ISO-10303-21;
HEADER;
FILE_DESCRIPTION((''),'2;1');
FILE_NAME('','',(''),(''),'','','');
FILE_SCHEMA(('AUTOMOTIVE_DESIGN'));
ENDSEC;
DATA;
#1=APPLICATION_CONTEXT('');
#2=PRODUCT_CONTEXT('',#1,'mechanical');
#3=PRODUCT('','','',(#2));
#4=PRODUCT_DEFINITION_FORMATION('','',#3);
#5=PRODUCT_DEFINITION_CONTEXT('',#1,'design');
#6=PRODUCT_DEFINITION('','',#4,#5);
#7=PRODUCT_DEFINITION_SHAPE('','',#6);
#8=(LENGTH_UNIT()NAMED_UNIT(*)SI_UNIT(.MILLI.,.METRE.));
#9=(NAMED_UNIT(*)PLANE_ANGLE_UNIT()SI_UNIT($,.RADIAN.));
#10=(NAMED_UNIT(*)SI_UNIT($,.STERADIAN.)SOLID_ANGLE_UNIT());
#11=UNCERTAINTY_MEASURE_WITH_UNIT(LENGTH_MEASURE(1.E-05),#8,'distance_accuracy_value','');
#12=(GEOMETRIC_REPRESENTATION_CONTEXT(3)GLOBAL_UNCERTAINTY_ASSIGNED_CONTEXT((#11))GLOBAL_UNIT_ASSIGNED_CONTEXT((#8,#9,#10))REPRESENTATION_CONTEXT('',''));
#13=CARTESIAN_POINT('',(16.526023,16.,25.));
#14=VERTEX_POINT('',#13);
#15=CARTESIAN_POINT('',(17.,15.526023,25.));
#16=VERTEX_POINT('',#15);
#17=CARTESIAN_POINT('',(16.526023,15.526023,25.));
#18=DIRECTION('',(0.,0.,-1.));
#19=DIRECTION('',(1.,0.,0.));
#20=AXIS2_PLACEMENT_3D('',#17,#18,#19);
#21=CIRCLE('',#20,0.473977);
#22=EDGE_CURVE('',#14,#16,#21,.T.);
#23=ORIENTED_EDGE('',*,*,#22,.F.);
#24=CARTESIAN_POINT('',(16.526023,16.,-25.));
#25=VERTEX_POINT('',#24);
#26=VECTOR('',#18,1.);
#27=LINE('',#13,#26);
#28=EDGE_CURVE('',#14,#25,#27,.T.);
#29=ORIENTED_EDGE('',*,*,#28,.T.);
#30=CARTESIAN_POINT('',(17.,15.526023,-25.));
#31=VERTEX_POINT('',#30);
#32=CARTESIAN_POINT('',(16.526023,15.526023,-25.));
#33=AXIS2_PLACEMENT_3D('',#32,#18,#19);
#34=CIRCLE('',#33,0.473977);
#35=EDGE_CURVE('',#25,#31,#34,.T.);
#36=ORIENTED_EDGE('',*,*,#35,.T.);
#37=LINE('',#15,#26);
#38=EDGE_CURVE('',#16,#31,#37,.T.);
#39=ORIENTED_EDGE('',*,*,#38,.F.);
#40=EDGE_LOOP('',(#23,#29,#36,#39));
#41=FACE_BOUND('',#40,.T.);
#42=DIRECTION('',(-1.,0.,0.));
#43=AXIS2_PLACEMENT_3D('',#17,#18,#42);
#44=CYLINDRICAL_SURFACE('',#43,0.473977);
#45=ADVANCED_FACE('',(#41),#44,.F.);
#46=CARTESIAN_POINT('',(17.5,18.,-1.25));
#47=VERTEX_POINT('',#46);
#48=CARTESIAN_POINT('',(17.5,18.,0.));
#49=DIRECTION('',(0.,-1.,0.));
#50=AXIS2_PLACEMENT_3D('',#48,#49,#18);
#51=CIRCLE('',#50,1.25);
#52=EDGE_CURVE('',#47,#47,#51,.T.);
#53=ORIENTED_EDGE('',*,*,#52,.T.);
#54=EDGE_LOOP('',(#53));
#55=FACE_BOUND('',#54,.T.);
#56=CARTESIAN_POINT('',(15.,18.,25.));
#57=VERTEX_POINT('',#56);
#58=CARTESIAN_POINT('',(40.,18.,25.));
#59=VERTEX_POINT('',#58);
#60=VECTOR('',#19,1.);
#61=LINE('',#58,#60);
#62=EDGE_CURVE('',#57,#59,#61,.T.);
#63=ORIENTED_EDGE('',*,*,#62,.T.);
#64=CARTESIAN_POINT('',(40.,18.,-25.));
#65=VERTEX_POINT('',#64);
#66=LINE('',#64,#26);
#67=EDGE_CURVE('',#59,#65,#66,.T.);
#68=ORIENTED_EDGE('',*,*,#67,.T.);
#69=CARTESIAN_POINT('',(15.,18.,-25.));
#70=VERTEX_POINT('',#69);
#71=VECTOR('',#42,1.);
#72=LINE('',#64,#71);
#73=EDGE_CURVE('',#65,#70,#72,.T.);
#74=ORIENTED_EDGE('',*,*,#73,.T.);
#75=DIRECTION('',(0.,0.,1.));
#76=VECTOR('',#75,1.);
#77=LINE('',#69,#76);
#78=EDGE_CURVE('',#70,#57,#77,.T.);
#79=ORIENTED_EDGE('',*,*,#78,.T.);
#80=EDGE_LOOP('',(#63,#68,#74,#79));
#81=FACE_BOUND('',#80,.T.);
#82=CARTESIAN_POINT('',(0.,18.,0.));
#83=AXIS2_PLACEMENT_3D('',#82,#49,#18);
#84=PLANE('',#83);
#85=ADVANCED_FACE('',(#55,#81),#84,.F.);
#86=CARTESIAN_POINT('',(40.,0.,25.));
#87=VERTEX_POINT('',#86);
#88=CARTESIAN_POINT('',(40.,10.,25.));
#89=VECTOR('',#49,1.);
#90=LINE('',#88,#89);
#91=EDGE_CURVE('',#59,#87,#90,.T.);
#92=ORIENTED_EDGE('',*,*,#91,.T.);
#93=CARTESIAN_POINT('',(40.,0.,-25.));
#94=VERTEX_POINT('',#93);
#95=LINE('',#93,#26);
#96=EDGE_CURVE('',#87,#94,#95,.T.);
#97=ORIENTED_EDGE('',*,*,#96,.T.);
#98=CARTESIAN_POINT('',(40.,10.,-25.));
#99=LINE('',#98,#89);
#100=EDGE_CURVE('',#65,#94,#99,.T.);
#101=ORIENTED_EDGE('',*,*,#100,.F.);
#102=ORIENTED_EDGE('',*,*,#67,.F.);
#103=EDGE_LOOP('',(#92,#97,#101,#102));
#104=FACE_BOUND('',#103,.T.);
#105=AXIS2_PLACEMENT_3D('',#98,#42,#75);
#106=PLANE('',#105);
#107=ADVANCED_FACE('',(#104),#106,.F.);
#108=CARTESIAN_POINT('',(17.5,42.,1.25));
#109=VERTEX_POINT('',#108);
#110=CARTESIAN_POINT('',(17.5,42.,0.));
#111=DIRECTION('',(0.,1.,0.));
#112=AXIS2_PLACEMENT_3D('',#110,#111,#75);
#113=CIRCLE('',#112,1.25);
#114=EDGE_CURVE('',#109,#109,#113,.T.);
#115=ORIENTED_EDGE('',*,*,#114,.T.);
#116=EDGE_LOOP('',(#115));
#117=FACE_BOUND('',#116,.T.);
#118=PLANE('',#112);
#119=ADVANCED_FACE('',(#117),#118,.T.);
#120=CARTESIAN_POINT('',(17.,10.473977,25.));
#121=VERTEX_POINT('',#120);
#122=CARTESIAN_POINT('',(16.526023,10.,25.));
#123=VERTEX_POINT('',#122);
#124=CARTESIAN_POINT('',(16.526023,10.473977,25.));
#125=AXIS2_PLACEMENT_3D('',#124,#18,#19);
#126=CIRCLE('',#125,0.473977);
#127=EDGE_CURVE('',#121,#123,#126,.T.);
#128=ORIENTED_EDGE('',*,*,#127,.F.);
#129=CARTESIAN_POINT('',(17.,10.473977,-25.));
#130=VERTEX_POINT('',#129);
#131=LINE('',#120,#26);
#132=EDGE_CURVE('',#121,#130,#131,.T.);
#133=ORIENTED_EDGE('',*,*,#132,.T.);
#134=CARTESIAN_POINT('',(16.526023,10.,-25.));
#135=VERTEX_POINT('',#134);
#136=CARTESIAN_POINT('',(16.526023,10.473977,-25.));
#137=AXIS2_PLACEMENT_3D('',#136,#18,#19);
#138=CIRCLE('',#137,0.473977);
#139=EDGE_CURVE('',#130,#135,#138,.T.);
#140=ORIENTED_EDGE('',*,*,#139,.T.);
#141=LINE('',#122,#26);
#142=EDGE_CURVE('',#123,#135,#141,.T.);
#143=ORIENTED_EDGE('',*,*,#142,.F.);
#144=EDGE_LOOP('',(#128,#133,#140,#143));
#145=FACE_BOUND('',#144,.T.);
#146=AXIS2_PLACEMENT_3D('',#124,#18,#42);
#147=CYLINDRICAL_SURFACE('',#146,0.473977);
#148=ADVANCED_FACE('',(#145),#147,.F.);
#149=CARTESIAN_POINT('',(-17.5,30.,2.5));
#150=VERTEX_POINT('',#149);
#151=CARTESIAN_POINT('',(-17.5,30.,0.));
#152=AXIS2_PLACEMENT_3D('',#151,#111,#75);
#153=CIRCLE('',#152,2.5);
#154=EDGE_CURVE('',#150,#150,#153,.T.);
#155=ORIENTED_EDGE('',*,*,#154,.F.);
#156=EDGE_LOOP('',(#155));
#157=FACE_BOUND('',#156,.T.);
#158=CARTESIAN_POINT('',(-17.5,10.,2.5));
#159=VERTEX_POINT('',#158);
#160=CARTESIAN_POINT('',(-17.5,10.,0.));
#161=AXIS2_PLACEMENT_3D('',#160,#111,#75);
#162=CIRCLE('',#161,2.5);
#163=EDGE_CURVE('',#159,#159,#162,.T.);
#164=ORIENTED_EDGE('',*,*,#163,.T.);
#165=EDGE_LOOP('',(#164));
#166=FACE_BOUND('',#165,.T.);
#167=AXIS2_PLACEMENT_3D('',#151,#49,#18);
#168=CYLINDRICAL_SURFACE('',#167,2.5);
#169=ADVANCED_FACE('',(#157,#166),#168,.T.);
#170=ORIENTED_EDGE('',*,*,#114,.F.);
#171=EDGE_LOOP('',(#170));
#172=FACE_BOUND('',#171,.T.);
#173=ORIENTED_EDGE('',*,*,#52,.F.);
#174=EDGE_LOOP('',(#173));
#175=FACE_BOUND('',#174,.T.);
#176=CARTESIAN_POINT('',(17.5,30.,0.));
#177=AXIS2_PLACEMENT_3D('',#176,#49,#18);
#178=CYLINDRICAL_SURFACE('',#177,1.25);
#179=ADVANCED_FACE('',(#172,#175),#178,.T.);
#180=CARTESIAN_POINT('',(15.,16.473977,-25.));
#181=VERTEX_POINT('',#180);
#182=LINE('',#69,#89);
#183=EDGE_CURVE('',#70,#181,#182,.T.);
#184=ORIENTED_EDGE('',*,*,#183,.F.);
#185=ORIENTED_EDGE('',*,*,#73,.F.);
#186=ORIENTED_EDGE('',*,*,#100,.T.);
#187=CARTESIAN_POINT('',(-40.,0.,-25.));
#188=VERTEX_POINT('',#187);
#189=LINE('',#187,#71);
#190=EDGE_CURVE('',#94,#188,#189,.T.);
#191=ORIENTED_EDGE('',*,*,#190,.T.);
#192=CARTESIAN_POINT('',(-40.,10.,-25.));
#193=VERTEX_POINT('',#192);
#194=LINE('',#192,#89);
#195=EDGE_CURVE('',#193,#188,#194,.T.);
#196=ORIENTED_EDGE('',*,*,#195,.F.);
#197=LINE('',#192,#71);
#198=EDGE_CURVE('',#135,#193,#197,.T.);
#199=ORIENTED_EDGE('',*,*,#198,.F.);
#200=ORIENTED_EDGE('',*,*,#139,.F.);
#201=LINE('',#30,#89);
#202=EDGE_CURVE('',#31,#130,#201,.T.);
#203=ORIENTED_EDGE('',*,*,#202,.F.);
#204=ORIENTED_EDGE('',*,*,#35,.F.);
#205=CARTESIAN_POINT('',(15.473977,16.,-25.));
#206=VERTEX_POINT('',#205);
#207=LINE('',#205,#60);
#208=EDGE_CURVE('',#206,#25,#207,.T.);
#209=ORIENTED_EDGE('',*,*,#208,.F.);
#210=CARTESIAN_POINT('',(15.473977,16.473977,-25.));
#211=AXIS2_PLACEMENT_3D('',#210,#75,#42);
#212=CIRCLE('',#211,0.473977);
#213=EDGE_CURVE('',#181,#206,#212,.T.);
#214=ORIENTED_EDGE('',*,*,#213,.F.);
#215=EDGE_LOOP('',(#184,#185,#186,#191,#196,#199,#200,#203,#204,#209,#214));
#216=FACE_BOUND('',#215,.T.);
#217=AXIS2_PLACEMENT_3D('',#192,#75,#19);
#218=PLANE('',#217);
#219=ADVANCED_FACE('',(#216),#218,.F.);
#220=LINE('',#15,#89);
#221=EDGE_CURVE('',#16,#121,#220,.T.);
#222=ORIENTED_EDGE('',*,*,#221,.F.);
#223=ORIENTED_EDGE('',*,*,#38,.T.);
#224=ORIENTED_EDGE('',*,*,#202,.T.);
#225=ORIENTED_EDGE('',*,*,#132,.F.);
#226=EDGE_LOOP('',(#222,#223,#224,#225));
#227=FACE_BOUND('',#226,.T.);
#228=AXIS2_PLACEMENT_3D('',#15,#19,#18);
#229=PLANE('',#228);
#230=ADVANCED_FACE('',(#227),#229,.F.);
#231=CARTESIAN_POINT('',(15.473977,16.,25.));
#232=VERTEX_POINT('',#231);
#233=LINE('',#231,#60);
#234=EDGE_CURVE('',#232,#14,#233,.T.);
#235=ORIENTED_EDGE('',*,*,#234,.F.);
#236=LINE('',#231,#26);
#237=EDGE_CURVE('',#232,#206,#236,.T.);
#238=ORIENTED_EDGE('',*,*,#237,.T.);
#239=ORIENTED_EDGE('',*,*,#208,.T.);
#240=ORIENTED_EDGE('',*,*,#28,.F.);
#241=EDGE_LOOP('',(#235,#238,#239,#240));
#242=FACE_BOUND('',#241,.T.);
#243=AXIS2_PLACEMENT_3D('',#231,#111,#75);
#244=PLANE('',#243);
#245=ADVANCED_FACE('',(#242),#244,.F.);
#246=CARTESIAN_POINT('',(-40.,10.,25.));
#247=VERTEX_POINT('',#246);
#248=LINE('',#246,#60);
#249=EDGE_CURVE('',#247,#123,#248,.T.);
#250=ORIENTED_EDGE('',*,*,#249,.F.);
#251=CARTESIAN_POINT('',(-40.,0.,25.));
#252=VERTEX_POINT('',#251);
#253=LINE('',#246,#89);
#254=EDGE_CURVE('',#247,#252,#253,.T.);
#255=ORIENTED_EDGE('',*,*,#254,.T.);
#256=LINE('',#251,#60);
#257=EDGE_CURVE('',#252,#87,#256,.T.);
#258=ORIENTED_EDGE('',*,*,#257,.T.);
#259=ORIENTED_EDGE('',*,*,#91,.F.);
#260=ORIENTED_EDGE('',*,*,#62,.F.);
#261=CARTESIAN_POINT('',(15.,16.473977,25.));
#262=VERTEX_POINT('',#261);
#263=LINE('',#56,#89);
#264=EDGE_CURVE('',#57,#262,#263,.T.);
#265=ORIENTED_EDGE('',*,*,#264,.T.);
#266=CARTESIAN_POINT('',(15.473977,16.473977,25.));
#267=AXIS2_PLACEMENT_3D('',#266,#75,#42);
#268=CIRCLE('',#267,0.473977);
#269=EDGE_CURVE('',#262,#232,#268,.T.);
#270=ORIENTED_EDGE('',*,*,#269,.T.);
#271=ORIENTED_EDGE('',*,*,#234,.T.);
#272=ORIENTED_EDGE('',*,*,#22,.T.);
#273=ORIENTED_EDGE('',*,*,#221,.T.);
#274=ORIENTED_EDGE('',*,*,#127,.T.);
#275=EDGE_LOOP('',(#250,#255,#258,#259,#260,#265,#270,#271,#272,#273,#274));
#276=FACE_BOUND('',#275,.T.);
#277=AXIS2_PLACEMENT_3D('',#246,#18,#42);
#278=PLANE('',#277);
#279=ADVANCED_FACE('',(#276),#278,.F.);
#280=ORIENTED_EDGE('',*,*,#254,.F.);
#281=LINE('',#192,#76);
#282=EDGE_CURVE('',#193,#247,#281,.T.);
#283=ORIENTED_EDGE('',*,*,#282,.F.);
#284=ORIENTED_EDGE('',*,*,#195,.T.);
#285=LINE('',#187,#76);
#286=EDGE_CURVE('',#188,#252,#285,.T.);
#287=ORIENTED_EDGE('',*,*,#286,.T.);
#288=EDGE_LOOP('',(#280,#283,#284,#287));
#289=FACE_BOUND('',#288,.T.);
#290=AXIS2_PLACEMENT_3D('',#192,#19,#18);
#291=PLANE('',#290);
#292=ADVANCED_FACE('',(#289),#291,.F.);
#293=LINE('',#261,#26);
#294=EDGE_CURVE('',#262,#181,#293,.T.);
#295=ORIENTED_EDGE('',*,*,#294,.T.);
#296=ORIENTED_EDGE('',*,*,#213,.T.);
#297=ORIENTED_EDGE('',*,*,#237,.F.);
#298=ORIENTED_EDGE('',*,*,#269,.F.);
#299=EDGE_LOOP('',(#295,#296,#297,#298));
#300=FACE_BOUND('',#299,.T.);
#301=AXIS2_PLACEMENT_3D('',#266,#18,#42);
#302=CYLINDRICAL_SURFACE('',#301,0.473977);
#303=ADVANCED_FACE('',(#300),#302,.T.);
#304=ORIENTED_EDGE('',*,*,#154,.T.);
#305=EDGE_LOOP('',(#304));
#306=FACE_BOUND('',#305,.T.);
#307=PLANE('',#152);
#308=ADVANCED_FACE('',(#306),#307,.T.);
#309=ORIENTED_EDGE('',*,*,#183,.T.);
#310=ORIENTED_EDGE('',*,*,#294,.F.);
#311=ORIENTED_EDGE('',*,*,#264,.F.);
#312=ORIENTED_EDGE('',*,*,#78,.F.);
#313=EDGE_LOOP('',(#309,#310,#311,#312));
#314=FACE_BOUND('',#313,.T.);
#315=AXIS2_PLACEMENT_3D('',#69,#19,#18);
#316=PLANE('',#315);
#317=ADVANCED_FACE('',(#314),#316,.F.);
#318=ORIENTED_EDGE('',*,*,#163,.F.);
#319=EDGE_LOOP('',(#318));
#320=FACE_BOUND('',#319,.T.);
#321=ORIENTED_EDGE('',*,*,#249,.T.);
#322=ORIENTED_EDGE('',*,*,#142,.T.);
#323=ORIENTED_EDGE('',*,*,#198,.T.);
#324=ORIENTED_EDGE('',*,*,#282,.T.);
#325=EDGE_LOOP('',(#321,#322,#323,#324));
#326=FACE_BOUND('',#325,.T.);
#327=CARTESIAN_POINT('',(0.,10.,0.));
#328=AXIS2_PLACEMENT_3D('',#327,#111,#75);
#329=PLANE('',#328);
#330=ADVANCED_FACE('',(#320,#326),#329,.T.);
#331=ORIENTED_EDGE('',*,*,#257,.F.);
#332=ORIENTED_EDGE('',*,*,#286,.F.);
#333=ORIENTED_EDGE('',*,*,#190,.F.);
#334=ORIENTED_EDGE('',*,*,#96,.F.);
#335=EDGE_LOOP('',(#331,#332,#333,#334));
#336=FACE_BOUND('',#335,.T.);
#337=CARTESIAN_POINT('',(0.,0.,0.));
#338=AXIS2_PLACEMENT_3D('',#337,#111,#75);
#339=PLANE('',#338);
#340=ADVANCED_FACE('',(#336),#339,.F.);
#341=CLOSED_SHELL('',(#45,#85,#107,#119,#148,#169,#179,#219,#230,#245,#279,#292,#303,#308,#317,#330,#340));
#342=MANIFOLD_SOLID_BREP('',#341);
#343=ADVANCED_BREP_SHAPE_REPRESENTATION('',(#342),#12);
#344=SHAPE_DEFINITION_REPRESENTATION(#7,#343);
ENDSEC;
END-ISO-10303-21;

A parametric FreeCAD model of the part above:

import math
import FreeCAD as App
import Part
import Sketcher
from FreeCAD import Vector
Q = App.Units.Quantity


def add_polygon(sketch, points):
    """Adds a closed chain of lines whose ends are joined by coincident constraints."""
    first, n = sketch.GeometryCount, len(points)
    for a, b in zip(points, points[1:] + points[:1]):
        sketch.addGeometry(Part.LineSegment(App.Vector(*a, 0), App.Vector(*b, 0)), False)
    for i in range(n):
        sketch.addConstraint(Sketcher.Constraint("Coincident", first + i, 2, first + (i + 1) % n, 1))

doc = App.newDocument("Part")
body = doc.addObject("PartDesign::Body", "Body")

# Sketch on XZ plane
sketch1 = doc.addObject("Sketcher::SketchObject", "Sketch")
body.addObject(sketch1)
sketch1.AttachmentSupport = (doc.XZ_Plane, [""])
sketch1.MapMode = "FlatFace"
add_polygon(sketch1, [(-40, -25), (-40, 25), (40, 25), (40, -25)])  # lines 0-3
sketch1.addConstraint([
    Sketcher.Constraint("Vertical", 0),
    Sketcher.Constraint("Horizontal", 1),
    Sketcher.Constraint("Vertical", 2),
    Sketcher.Constraint("Horizontal", 3),
    Sketcher.Constraint("Symmetric", 0, 2, 2, 2, -1, 1),
    Sketcher.Constraint("DistanceX", 1, 1, 1, 2, Q("80 mm")),
    Sketcher.Constraint("DistanceY", 0, 1, 0, 2, Q("50 mm")),
])
pad1 = doc.addObject("PartDesign::Pad", "Pad")
body.addObject(pad1)
pad1.Profile = sketch1
pad1.Length = 10
pad1.Reversed = True

# Sketch on XZ plane
sketch2 = doc.addObject("Sketcher::SketchObject", "Sketch001")
body.addObject(sketch2)
sketch2.AttachmentSupport = (doc.XZ_Plane, [""])
sketch2.MapMode = "FlatFace"
sketch2.AttachmentOffset = App.Placement(Vector(0, 0, -10), App.Rotation())
sketch2.addGeometry([
    Part.Circle(Vector(-17.5, 0, 0), Vector(0, 0, 1), 2.5),
    Part.Circle(Vector(17.5, 0, 0), Vector(0, 0, 1), 1.2),
], False)
sketch2.addConstraint([
    Sketcher.Constraint("Symmetric", 0, 3, 1, 3, -1, 1),
    Sketcher.Constraint("PointOnObject", 0, 3, -1),
    Sketcher.Constraint("Diameter", 0, Q("5 mm")),
    Sketcher.Constraint("Diameter", 1, Q("2.5 mm")),
    Sketcher.Constraint("DistanceX", 0, 3, 1, 3, Q("35 mm")),
])
pad2 = doc.addObject("PartDesign::Pad", "Pad001")
body.addObject(pad2)
pad2.Profile = sketch2
pad2.Length = 20
pad2.Reversed = True

# Sketch on XZ plane
sketch3 = doc.addObject("Sketcher::SketchObject", "Sketch002")
body.addObject(sketch3)
sketch3.AttachmentSupport = (doc.XZ_Plane, [""])
sketch3.MapMode = "FlatFace"
sketch3.AttachmentOffset = App.Placement(Vector(0, 0, -10), App.Rotation())
add_polygon(sketch3, [(15, -25), (15, 25), (40, 25), (40, -25)])  # lines 0-3
sketch3.addConstraint([
    Sketcher.Constraint("Vertical", 0),
    Sketcher.Constraint("Horizontal", 1),
    Sketcher.Constraint("Vertical", 2),
    Sketcher.Constraint("Horizontal", 3),
    Sketcher.Constraint("DistanceX", 1, 1, 1, 2, Q("25 mm")),
    Sketcher.Constraint("DistanceY", 0, 1, 0, 2, Q("50 mm")),
    Sketcher.Constraint("DistanceX", -1, 1, 0, 2, Q("15 mm")),
    Sketcher.Constraint("DistanceY", -1, 1, 0, 2, Q("25 mm")),
])
pad3 = doc.addObject("PartDesign::Pad", "Pad002")
body.addObject(pad3)
pad3.Profile = sketch3
pad3.Length = 8
pad3.Reversed = True

# Sketch on XZ plane
sketch4 = doc.addObject("Sketcher::SketchObject", "Sketch003")
body.addObject(sketch4)
sketch4.AttachmentSupport = (doc.XZ_Plane, [""])
sketch4.MapMode = "FlatFace"
sketch4.AttachmentOffset = App.Placement(Vector(0, 0, -30), App.Rotation())
sketch4.addGeometry(Part.Circle(Vector(17.5, 0, 0), Vector(0, 0, 1), 1.2), False)
sketch4.addConstraint([
    Sketcher.Constraint("PointOnObject", 0, 3, -1),
    Sketcher.Constraint("Diameter", 0, Q("2.5 mm")),
    Sketcher.Constraint("DistanceX", -1, 1, 0, 3, Q("17.5 mm")),
])
pad4 = doc.addObject("PartDesign::Pad", "Pad003")
body.addObject(pad4)
pad4.Profile = sketch4
pad4.Length = 12
pad4.Reversed = True

# Sketch on XY plane
sketch5 = doc.addObject("Sketcher::SketchObject", "Sketch004")
body.addObject(sketch5)
sketch5.AttachmentSupport = (doc.XY_Plane, [""])
sketch5.MapMode = "FlatFace"
sketch5.AttachmentOffset = App.Placement(Vector(0, 0, -25), App.Rotation())
sketch5.addGeometry([
    Part.LineSegment(Vector(15.47, 16, 0), Vector(16.53, 16, 0)),  # 0
    Part.ArcOfCircle(Part.Circle(Vector(16.53, 15.53, 0), Vector(0, 0, 1), 0.47), math.radians(0), math.radians(90)),  # 1
    Part.LineSegment(Vector(17, 15.53, 0), Vector(17, 10.47, 0)),  # 2
    Part.ArcOfCircle(Part.Circle(Vector(16.53, 10.47, 0), Vector(0, 0, 1), 0.47), math.radians(-90), math.radians(0)),  # 3
    Part.LineSegment(Vector(16.53, 10, 0), Vector(14.5, 10, 0)),  # 4
    Part.LineSegment(Vector(14.5, 10, 0), Vector(14.5, 18, 0)),  # 5
    Part.LineSegment(Vector(14.5, 18, 0), Vector(15, 18, 0)),  # 6
    Part.LineSegment(Vector(15, 18, 0), Vector(15, 16.47, 0)),  # 7
    Part.ArcOfCircle(Part.Circle(Vector(15.47, 16.47, 0), Vector(0, 0, 1), 0.47), math.radians(-180), math.radians(-90)),  # 8
], False)
sketch5.addConstraint([
    Sketcher.Constraint("Tangent", 0, 2, 1, 2),
    Sketcher.Constraint("Tangent", 1, 1, 2, 1),
    Sketcher.Constraint("Tangent", 2, 2, 3, 2),
    Sketcher.Constraint("Tangent", 3, 1, 4, 1),
    Sketcher.Constraint("Coincident", 4, 2, 5, 1),
    Sketcher.Constraint("Coincident", 5, 2, 6, 1),
    Sketcher.Constraint("Coincident", 6, 2, 7, 1),
    Sketcher.Constraint("Tangent", 7, 2, 8, 1),
    Sketcher.Constraint("Tangent", 8, 2, 0, 1),
    Sketcher.Constraint("Horizontal", 0),
    Sketcher.Constraint("Vertical", 2),
    Sketcher.Constraint("Horizontal", 4),
    Sketcher.Constraint("Vertical", 5),
    Sketcher.Constraint("Horizontal", 6),
    Sketcher.Constraint("Vertical", 7),
    Sketcher.Constraint("Equal", 1, 3),
    Sketcher.Constraint("Equal", 3, 8),
    Sketcher.Constraint("DistanceY", 5, 1, 5, 2, Q("8 mm")),
    Sketcher.Constraint("DistanceX", 6, 1, 6, 2, Q("0.5 mm")),
    Sketcher.Constraint("DistanceY", -1, 1, 0, 2, Q("16 mm")),
    Sketcher.Constraint("DistanceX", -1, 1, 1, 1, Q("17 mm")),
    Sketcher.Constraint("DistanceY", -1, 1, 3, 1, Q("10 mm")),
    Sketcher.Constraint("DistanceX", -1, 1, 6, 2, Q("15 mm")),
    Sketcher.Constraint("Radius", 1, Q("0.473977 mm")),
])
pocket1 = doc.addObject("PartDesign::Pocket", "Pocket")
body.addObject(pocket1)
pocket1.Profile = sketch5
pocket1.Type = "ThroughAll"
pocket1.Reversed = True

doc.recompute()
